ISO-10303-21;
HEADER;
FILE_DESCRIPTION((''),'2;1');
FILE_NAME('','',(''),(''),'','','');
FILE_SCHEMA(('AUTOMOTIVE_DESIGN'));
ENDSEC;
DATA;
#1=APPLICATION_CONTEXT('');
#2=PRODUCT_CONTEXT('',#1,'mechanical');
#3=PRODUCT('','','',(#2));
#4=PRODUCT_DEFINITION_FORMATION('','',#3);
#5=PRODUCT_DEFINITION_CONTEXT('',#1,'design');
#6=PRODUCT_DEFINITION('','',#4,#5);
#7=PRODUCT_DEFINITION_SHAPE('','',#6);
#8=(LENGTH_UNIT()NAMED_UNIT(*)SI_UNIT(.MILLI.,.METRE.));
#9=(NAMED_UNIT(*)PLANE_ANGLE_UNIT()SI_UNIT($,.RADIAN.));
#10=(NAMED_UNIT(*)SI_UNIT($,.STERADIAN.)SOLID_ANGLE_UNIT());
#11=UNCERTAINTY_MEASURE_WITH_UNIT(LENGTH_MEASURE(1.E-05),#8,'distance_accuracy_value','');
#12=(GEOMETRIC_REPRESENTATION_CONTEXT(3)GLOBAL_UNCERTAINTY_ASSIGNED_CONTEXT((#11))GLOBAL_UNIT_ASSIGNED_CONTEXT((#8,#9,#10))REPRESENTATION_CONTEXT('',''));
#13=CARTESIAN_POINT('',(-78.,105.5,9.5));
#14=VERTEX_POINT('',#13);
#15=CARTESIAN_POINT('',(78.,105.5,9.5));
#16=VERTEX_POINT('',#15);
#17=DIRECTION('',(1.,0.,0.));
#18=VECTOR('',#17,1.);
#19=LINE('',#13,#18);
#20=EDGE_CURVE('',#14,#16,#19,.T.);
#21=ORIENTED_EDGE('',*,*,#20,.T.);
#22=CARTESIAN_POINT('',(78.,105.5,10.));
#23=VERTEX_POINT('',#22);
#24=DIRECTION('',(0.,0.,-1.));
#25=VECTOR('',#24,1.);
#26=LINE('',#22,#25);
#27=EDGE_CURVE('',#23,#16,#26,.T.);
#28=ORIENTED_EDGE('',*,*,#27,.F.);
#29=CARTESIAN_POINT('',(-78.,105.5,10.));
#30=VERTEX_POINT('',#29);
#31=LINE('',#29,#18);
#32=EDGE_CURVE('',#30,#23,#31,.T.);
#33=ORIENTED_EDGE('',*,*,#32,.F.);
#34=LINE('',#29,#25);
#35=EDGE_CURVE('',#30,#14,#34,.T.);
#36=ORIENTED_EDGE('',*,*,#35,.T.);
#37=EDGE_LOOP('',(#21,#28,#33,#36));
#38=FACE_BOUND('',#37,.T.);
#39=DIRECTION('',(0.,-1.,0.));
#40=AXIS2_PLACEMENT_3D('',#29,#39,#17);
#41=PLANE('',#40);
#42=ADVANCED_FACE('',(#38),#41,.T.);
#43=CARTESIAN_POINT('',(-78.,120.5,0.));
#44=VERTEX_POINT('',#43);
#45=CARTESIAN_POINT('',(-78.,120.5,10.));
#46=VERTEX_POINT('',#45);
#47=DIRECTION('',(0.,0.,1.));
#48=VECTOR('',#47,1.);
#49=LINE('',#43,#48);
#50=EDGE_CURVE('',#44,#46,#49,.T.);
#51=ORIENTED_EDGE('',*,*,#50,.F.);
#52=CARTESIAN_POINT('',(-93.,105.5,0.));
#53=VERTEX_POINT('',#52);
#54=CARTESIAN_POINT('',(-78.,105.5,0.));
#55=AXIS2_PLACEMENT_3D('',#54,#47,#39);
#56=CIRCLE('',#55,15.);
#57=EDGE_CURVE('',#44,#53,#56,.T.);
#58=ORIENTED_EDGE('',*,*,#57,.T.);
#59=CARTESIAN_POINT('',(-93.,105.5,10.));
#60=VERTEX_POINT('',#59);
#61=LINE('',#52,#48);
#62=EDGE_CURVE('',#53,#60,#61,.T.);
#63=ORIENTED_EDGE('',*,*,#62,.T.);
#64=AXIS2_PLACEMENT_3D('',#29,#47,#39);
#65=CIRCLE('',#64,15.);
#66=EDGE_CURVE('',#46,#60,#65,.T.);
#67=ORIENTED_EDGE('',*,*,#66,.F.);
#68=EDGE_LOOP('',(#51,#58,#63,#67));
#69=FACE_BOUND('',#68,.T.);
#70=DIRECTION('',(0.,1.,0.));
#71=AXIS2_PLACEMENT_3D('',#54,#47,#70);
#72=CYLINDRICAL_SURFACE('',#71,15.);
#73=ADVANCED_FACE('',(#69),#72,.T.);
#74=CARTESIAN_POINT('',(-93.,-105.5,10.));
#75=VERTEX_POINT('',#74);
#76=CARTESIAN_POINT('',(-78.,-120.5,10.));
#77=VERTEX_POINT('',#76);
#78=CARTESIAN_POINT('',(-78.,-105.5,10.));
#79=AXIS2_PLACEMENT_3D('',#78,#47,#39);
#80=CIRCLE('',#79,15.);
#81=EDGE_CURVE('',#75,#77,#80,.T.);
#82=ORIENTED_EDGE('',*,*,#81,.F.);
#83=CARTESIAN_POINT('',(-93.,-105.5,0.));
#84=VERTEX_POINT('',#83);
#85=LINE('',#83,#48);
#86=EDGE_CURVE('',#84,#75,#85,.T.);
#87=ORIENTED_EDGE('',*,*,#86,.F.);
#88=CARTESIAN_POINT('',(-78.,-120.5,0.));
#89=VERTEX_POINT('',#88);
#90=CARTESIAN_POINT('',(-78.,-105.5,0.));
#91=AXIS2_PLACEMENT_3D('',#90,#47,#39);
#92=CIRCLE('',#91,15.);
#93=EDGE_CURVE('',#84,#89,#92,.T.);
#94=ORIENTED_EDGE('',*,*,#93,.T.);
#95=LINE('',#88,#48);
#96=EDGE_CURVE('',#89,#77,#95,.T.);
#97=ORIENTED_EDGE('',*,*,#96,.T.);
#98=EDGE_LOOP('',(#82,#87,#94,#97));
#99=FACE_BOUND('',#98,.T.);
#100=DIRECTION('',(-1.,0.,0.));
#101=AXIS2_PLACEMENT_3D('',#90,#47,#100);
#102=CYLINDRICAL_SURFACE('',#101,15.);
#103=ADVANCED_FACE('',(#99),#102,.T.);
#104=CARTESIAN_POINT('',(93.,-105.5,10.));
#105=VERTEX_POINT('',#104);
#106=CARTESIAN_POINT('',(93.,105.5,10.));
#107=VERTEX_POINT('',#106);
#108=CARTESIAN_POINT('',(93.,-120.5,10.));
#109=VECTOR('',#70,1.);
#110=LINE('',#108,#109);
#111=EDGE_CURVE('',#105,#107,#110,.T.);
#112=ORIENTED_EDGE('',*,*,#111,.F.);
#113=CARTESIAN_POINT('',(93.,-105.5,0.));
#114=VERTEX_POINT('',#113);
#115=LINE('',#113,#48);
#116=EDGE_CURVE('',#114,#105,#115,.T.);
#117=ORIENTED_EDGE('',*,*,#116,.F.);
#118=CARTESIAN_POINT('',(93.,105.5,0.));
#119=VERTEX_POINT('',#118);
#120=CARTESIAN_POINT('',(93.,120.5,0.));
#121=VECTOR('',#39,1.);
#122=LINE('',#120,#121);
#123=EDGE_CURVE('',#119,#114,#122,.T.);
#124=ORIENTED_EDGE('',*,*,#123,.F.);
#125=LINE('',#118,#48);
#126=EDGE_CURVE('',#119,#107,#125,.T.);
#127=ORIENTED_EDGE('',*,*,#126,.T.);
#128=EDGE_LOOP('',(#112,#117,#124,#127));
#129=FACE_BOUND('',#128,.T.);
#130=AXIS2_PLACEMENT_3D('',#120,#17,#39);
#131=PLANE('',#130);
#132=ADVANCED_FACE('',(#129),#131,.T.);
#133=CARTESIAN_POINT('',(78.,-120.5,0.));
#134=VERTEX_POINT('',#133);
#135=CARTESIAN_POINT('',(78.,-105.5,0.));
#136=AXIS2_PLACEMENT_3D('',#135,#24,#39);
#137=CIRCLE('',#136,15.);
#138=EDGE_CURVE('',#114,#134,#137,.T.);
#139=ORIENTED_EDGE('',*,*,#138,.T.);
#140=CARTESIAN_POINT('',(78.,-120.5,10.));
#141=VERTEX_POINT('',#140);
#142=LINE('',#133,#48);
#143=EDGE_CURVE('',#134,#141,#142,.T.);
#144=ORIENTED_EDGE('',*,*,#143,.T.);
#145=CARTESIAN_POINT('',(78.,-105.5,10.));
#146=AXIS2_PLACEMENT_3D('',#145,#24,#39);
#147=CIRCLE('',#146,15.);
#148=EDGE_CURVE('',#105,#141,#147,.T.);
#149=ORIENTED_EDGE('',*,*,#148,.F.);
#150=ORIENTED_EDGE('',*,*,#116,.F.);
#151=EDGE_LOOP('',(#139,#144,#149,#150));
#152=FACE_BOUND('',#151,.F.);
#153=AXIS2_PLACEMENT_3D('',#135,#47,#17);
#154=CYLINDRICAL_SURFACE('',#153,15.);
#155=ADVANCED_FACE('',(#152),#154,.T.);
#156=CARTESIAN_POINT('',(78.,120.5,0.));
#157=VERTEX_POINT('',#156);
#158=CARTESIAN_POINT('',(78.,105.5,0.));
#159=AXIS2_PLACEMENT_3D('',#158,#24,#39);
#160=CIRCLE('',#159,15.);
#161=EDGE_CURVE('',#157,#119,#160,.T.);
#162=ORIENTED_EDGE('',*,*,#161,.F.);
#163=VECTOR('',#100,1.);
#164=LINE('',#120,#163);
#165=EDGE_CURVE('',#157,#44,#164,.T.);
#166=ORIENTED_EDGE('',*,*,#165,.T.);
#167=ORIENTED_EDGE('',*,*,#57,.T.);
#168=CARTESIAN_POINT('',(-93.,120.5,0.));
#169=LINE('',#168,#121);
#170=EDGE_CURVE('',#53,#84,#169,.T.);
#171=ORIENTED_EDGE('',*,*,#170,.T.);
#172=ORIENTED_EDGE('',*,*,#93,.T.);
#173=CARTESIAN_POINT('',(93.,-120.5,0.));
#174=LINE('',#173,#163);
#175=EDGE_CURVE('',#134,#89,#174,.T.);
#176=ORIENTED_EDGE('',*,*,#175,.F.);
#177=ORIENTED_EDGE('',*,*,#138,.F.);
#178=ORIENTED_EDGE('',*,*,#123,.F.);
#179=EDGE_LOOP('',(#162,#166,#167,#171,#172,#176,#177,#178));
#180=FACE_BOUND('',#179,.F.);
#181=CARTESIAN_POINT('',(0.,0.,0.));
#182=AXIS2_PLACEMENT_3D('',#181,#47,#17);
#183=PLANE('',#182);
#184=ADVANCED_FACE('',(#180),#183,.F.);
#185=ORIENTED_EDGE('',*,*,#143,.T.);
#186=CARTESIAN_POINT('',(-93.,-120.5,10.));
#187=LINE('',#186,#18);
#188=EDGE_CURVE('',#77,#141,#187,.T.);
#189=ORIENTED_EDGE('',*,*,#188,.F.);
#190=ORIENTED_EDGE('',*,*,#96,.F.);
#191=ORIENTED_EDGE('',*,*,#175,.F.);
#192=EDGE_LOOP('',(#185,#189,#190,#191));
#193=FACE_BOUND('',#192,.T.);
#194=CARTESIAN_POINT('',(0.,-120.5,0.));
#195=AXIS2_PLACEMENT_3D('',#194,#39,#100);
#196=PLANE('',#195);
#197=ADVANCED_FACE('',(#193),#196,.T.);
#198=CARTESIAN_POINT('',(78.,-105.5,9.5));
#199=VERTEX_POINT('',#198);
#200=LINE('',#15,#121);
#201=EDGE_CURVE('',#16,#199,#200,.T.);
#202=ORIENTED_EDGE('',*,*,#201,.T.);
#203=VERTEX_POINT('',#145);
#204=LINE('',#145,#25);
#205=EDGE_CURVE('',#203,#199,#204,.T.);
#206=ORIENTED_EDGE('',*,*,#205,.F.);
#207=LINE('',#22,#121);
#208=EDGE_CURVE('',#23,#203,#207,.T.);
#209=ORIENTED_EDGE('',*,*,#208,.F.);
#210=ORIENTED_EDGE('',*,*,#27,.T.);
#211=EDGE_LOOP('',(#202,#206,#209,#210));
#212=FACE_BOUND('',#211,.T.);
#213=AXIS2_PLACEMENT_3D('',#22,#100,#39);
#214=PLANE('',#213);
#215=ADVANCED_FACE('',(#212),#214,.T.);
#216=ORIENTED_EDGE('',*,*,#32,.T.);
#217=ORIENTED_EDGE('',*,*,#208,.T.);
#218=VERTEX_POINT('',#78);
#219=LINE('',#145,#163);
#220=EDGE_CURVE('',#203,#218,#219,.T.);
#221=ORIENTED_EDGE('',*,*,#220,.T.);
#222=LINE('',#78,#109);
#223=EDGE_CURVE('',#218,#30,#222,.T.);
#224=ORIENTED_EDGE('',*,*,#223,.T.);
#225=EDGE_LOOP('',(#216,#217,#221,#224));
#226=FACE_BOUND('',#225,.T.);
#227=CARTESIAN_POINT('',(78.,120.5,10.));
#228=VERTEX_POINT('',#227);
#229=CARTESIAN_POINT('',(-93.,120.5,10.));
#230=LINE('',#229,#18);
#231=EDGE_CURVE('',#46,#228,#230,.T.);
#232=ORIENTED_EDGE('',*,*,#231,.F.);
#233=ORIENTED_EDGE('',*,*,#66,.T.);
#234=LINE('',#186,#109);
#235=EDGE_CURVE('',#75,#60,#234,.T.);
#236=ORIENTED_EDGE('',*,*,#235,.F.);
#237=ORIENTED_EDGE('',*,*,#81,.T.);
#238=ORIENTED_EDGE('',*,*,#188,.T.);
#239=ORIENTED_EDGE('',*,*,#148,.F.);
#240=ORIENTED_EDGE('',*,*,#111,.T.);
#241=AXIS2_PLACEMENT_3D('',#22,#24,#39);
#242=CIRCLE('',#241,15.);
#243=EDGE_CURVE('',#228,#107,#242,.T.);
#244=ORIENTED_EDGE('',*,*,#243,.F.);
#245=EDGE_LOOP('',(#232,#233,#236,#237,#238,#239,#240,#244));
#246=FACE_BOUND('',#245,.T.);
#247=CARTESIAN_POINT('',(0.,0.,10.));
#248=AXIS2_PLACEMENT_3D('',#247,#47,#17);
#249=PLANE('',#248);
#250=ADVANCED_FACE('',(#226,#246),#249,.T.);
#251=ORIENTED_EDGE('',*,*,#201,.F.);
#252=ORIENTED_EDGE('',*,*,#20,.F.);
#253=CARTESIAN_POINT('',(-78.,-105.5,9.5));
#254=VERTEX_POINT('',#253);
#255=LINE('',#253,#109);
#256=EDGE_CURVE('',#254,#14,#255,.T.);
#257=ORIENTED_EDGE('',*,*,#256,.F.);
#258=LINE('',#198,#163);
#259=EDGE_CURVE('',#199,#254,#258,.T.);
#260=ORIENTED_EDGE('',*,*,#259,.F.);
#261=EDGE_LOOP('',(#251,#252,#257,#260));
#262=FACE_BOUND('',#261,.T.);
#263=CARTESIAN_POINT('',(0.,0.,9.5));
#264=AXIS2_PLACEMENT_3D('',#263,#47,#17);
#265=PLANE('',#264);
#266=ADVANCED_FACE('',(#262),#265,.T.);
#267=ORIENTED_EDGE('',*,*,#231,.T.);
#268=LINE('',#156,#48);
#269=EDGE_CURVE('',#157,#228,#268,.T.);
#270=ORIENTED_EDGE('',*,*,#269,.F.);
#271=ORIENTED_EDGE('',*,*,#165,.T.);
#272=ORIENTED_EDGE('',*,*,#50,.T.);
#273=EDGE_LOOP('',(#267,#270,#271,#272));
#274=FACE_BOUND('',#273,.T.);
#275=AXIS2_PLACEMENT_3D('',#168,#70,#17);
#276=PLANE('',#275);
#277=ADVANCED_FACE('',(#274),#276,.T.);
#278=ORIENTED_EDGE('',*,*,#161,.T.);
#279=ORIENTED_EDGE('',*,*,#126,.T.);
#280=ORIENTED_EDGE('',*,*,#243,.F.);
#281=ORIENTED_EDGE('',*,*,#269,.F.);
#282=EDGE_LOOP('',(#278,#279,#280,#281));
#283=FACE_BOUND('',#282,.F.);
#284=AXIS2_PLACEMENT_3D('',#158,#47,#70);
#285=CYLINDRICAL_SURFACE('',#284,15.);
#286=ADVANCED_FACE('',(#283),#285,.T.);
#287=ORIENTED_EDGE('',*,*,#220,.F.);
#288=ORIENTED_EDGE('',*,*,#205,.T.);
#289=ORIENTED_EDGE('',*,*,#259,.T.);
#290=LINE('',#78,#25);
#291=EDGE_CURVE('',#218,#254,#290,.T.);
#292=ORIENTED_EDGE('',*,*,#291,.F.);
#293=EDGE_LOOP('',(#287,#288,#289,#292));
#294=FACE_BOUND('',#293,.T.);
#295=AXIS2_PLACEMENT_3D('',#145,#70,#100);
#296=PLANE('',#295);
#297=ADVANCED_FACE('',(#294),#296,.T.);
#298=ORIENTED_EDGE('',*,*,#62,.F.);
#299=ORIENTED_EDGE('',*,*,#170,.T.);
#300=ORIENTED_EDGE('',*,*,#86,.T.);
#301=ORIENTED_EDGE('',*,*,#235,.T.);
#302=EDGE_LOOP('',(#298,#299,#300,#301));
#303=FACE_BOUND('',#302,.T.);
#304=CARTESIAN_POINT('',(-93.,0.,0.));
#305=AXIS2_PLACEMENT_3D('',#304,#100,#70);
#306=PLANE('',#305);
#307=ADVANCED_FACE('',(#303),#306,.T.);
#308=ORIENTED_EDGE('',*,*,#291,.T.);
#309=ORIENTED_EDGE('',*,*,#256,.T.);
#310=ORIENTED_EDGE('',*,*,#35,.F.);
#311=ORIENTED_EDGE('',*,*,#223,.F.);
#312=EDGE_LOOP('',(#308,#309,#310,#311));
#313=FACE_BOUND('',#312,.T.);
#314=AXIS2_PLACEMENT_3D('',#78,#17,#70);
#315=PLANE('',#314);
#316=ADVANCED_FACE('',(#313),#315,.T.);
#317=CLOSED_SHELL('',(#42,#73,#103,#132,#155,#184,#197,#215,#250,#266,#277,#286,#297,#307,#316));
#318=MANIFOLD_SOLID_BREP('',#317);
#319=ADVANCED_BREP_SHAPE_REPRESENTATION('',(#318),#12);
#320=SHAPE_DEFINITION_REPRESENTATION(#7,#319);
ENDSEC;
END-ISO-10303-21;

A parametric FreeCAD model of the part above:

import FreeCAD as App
import Part
import Sketcher
from FreeCAD import Vector
Q = App.Units.Quantity


def edges_at(feature, points):
    """Names of the edges that pass closest to the given points."""
    edges = feature.Shape.Edges
    near = lambda p: min(range(len(edges)), key=lambda i: edges[i].distToShape(Part.Vertex(*p))[0])
    return sorted({f"Edge{near(p) + 1}" for p in points})

doc = App.newDocument("Part")
body = doc.addObject("PartDesign::Body", "Body")

# Sketch on XY plane
sketch1 = body.newObject("Sketcher::SketchObject", "Sketch")
sketch1.AttachmentSupport = (doc.getObject("XY_Plane"), [""])
sketch1.MapMode = "FlatFace"
sketch1.addGeometry(Part.LineSegment(Vector(-93, 120, 0), Vector(-93, -120, 0)), False)
sketch1.addGeometry(Part.LineSegment(Vector(-93, -120, 0), Vector(93, -120, 0)), False)
sketch1.addGeometry(Part.LineSegment(Vector(93, -120, 0), Vector(93, 120, 0)), False)
sketch1.addGeometry(Part.LineSegment(Vector(93, 120, 0), Vector(-93, 120, 0)), False)
sketch1.addConstraint(Sketcher.Constraint("Coincident", 0, 2, 1, 1))
sketch1.addConstraint(Sketcher.Constraint("Coincident", 1, 2, 2, 1))
sketch1.addConstraint(Sketcher.Constraint("Coincident", 2, 2, 3, 1))
sketch1.addConstraint(Sketcher.Constraint("Coincident", 3, 2, 0, 1))
sketch1.addConstraint(Sketcher.Constraint("Vertical", 0))
sketch1.addConstraint(Sketcher.Constraint("Horizontal", 1))
sketch1.addConstraint(Sketcher.Constraint("Vertical", 2))
sketch1.addConstraint(Sketcher.Constraint("Horizontal", 3))
sketch1.addConstraint(Sketcher.Constraint("Symmetric", 0, 2, 2, 2, -1, 1))
sketch1.addConstraint(Sketcher.Constraint("DistanceX", 1, 1, 1, 2, Q("186 mm")))
sketch1.addConstraint(Sketcher.Constraint("DistanceY", 0, 2, 0, 1, Q("241 mm")))
pad1 = body.newObject("PartDesign::Pad", "Pad")
pad1.Profile = sketch1
pad1.Length = 10

# Sketch on XY plane
sketch2 = body.newObject("Sketcher::SketchObject", "Sketch001")
sketch2.AttachmentSupport = (doc.getObject("XY_Plane"), [""])
sketch2.MapMode = "FlatFace"
sketch2.AttachmentOffset = App.Placement(Vector(0, 0, 10), App.Rotation())
sketch2.addGeometry(Part.LineSegment(Vector(78, -106, 0), Vector(78, 106, 0)), False)
sketch2.addGeometry(Part.LineSegment(Vector(78, 106, 0), Vector(-78, 106, 0)), False)
sketch2.addGeometry(Part.LineSegment(Vector(-78, 106, 0), Vector(-78, -106, 0)), False)
sketch2.addGeometry(Part.LineSegment(Vector(-78, -106, 0), Vector(78, -106, 0)), False)
sketch2.addConstraint(Sketcher.Constraint("Coincident", 0, 2, 1, 1))
sketch2.addConstraint(Sketcher.Constraint("Coincident", 1, 2, 2, 1))
sketch2.addConstraint(Sketcher.Constraint("Coincident", 2, 2, 3, 1))
sketch2.addConstraint(Sketcher.Constraint("Coincident", 3, 2, 0, 1))
sketch2.addConstraint(Sketcher.Constraint("Vertical", 0))
sketch2.addConstraint(Sketcher.Constraint("Horizontal", 1))
sketch2.addConstraint(Sketcher.Constraint("Vertical", 2))
sketch2.addConstraint(Sketcher.Constraint("Horizontal", 3))
sketch2.addConstraint(Sketcher.Constraint("Symmetric", 0, 2, 2, 2, -1, 1))
sketch2.addConstraint(Sketcher.Constraint("DistanceX", 1, 2, 1, 1, Q("156 mm")))
sketch2.addConstraint(Sketcher.Constraint("DistanceY", 0, 1, 0, 2, Q("211 mm")))
pocket1 = body.newObject("PartDesign::Pocket", "Pocket")
pocket1.Profile = sketch2
pocket1.Length = 0.5
doc.recompute()

fillet = body.newObject("PartDesign::Fillet", "Fillet")
fillet.Base = (pocket1, edges_at(pocket1, [
    (-93, -120.5, 5),
    (93, -120.5, 5),
    (93, 120.5, 5),
    (-93, 120.5, 5),
]))
fillet.Radius = 15

doc.recompute()
